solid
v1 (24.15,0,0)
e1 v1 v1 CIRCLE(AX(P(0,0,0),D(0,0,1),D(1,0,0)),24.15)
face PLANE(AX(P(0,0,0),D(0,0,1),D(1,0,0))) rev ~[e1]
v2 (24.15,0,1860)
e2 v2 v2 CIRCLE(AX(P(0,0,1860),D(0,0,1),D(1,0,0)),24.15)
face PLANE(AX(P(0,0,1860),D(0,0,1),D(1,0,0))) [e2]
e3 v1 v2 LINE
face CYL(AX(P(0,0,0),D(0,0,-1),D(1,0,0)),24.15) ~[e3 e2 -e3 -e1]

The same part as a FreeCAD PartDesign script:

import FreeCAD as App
import Part
import Sketcher
from FreeCAD import Vector

doc = App.newDocument("Part")
body = doc.addObject("PartDesign::Body", "Body")

sketch1 = body.newObject("Sketcher::SketchObject", "Sketch")
sketch1.AttachmentSupport = (doc.getObject("XY_Plane"), [""])
sketch1.MapMode = "FlatFace"
sketch1.addGeometry(Part.Circle(Vector(0, 0, 0), Vector(0, 0, 1), 24), False)
sketch1.addConstraint([
    Sketcher.Constraint("Coincident", 0, 3, -1, 1),
    Sketcher.Constraint("Diameter", 0, 48.3),
])
pad1 = body.newObject("PartDesign::Pad", "Pad")
pad1.Profile = sketch1
pad1.Length = 1860

doc.recompute()
